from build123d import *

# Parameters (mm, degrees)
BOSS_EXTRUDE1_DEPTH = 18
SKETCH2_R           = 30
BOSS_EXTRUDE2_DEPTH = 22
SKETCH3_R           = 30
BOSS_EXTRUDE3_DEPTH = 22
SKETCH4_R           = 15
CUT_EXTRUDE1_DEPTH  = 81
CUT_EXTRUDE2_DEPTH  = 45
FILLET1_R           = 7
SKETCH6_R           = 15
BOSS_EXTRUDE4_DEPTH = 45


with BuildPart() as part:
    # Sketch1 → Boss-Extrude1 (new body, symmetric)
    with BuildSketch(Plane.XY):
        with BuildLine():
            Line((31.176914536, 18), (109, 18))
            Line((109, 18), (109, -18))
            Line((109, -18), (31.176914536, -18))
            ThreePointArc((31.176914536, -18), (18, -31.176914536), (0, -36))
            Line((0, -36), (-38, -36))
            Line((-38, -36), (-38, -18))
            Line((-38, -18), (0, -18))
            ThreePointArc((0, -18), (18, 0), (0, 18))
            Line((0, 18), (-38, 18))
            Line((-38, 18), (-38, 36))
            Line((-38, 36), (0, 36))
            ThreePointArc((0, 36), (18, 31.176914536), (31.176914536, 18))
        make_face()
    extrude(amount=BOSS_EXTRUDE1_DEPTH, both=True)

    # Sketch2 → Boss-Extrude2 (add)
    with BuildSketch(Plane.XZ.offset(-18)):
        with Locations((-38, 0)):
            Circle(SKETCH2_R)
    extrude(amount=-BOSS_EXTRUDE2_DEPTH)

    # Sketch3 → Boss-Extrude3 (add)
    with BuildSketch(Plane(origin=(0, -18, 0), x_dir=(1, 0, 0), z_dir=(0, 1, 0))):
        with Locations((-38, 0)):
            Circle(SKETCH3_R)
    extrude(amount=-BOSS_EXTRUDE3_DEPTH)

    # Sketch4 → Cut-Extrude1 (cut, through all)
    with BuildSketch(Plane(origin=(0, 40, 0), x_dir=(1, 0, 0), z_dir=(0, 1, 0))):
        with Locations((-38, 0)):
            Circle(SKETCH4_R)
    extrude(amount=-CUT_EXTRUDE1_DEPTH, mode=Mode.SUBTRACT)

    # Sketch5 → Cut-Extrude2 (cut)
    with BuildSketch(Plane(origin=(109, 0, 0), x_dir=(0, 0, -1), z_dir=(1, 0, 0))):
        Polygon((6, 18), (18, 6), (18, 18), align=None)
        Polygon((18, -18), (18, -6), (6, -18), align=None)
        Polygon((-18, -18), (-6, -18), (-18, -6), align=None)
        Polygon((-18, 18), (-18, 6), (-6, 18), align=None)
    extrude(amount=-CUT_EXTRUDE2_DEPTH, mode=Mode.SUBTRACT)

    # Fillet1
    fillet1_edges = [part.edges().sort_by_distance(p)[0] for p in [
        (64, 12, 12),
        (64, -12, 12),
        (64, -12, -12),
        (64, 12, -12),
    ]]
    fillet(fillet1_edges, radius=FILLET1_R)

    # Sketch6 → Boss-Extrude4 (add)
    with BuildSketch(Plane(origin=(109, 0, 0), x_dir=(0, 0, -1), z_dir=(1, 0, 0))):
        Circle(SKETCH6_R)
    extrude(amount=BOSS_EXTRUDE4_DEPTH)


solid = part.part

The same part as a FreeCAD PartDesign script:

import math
import FreeCAD as App
import Part
import Sketcher

V = App.Vector
Q = App.Units.Quantity


def edges_at(feature, points):
    """Names of the edges that pass closest to the given points."""
    edges = feature.Shape.Edges
    near = lambda p: min(range(len(edges)), key=lambda i: edges[i].distToShape(Part.Vertex(*p))[0])
    return sorted({f"Edge{near(p) + 1}" for p in points})

doc = App.newDocument("Part")
params = doc.addObject("Spreadsheet::Sheet", "Params")
for row, (alias, value) in enumerate([
    ("sketch1_radius", "36 mm"),
    ("sketch1_radius2", "18 mm"),
    ("sketch1_width", "38 mm"),
    ("pad1_length", "36 mm"),
    ("sketch2_diameter", "60 mm"),
    ("pad2_length", "22 mm"),
    ("sketch3_diameter", "60 mm"),
    ("pad3_length", "22 mm"),
    ("sketch4_diameter", "30 mm"),
    ("sketch5_width", "12 mm"),
    ("pocket2_length", "45 mm"),
    ("fillet_radius", "7 mm"),
    ("sketch6_diameter", "30 mm"),
    ("pad4_length", "45 mm"),
], start=1):
    params.set(f"A{row}", alias)
    params.set(f"B{row}", "=" + value)
    params.setAlias(f"B{row}", alias)

body = doc.addObject("PartDesign::Body", "Body")

sketch1 = doc.addObject("Sketcher::SketchObject", "Sketch")
body.addObject(sketch1)
sketch1.AttachmentSupport = (doc.XY_Plane, [""])
sketch1.MapMode = "FlatFace"
sketch1.addGeometry([
    Part.LineSegment(V(109, 18, 0), V(31.176915, 18, 0)),
    Part.ArcOfCircle(Part.Circle(V(0, 0, 0), V(0, 0, 1), 36), math.radians(30), math.radians(90)),
    Part.LineSegment(V(0, 36, 0), V(-38, 36, 0)),
    Part.LineSegment(V(-38, 36, 0), V(-38, 18, 0)),
    Part.LineSegment(V(-38, 18, 0), V(0, 18, 0)),
    Part.ArcOfCircle(Part.Circle(V(0, 0, 0), V(0, 0, 1), 18), math.radians(-90), math.radians(90)),
    Part.LineSegment(V(0, -18, 0), V(-38, -18, 0)),
    Part.LineSegment(V(-38, -18, 0), V(-38, -36, 0)),
    Part.LineSegment(V(-38, -36, 0), V(0, -36, 0)),
    Part.ArcOfCircle(Part.Circle(V(0, 0, 0), V(0, 0, 1), 36), math.radians(-90), math.radians(-30)),
    Part.LineSegment(V(31.176915, -18, 0), V(109, -18, 0)),
    Part.LineSegment(V(109, -18, 0), V(109, 18, 0)),
], False)
sketch1.addConstraint([
    Sketcher.Constraint("Coincident", 0, 2, 1, 1),
    Sketcher.Constraint("Tangent", 1, 2, 2, 1),
    Sketcher.Constraint("Coincident", 2, 2, 3, 1),
    Sketcher.Constraint("Coincident", 3, 2, 4, 1),
    Sketcher.Constraint("Tangent", 4, 2, 5, 2),
    Sketcher.Constraint("Tangent", 5, 1, 6, 1),
    Sketcher.Constraint("Coincident", 6, 2, 7, 1),
    Sketcher.Constraint("Coincident", 7, 2, 8, 1),
    Sketcher.Constraint("Tangent", 8, 2, 9, 1),
    Sketcher.Constraint("Coincident", 9, 2, 10, 1),
    Sketcher.Constraint("Coincident", 10, 2, 11, 1),
    Sketcher.Constraint("Coincident", 11, 2, 0, 1),
    Sketcher.Constraint("Horizontal", 0),
    Sketcher.Constraint("Horizontal", 2),
    Sketcher.Constraint("Vertical", 3),
    Sketcher.Constraint("Horizontal", 4),
    Sketcher.Constraint("Horizontal", 6),
    Sketcher.Constraint("Vertical", 7),
    Sketcher.Constraint("Horizontal", 8),
    Sketcher.Constraint("Horizontal", 10),
    Sketcher.Constraint("Vertical", 11),
    Sketcher.Constraint("Coincident", 1, 3, -1, 1),
    Sketcher.Constraint("Coincident", 5, 3, -1, 1),
    Sketcher.Constraint("Coincident", 9, 3, -1, 1),
    Sketcher.Constraint("Equal", 1, 9),
    Sketcher.Constraint("Horizontal", 0, 2, 3, 2),
    Sketcher.Constraint("Horizontal", 6, 2, 9, 2),
    Sketcher.Constraint("Vertical", 3, 2, 6, 2),
    Sketcher.Constraint("Radius", 1, Q("36 mm")),
    Sketcher.Constraint("Radius", 5, Q("18 mm")),
    Sketcher.Constraint("DistanceX", 2, 2, 2, 1, Q("38 mm")),
    Sketcher.Constraint("DistanceX", -1, 1, 10, 2, Q("109 mm")),
])
sketch1.setExpression("Constraints[28]", "Params.sketch1_radius")
sketch1.setExpression("Constraints[29]", "Params.sketch1_radius2")
sketch1.setExpression("Constraints[30]", "Params.sketch1_width")
pad1 = doc.addObject("PartDesign::Pad", "Pad")
body.addObject(pad1)
pad1.Profile = sketch1
pad1.setExpression("Length", "Params.pad1_length")
pad1.Midplane = True

sketch2 = doc.addObject("Sketcher::SketchObject", "Sketch001")
body.addObject(sketch2)
sketch2.AttachmentSupport = (doc.XZ_Plane, [""])
sketch2.MapMode = "FlatFace"
sketch2.AttachmentOffset = App.Placement(V(0, 0, -18), App.Rotation())
sketch2.addGeometry(Part.Circle(V(-38, 0, 0), V(0, 0, 1), 30), False)
sketch2.addConstraint([
    Sketcher.Constraint("PointOnObject", 0, 3, -1),
    Sketcher.Constraint("Diameter", 0, Q("60 mm")),
    Sketcher.Constraint("DistanceX", 0, 3, -1, 1, Q("38 mm")),
])
sketch2.setExpression("Constraints[1]", "Params.sketch2_diameter")
pad2 = doc.addObject("PartDesign::Pad", "Pad001")
body.addObject(pad2)
pad2.Profile = sketch2
pad2.setExpression("Length", "Params.pad2_length")
pad2.Reversed = True

sketch3 = doc.addObject("Sketcher::SketchObject", "Sketch002")
body.addObject(sketch3)
sketch3.AttachmentSupport = (doc.XZ_Plane, [""])
sketch3.MapMode = "FlatFace"
sketch3.AttachmentOffset = App.Placement(V(0, 0, 18), App.Rotation())
sketch3.addGeometry(Part.Circle(V(-38, 0, 0), V(0, 0, 1), 30), False)
sketch3.addConstraint([
    Sketcher.Constraint("PointOnObject", 0, 3, -1),
    Sketcher.Constraint("Diameter", 0, Q("60 mm")),
    Sketcher.Constraint("DistanceX", 0, 3, -1, 1, Q("38 mm")),
])
sketch3.setExpression("Constraints[1]", "Params.sketch3_diameter")
pad3 = doc.addObject("PartDesign::Pad", "Pad002")
body.addObject(pad3)
pad3.Profile = sketch3
pad3.setExpression("Length", "Params.pad3_length")

sketch4 = doc.addObject("Sketcher::SketchObject", "Sketch003")
body.addObject(sketch4)
sketch4.AttachmentSupport = (doc.XZ_Plane, [""])
sketch4.MapMode = "FlatFace"
sketch4.AttachmentOffset = App.Placement(V(0, 0, -40), App.Rotation())
sketch4.addGeometry(Part.Circle(V(-38, 0, 0), V(0, 0, 1), 15), False)
sketch4.addConstraint([
    Sketcher.Constraint("PointOnObject", 0, 3, -1),
    Sketcher.Constraint("Diameter", 0, Q("30 mm")),
    Sketcher.Constraint("DistanceX", 0, 3, -1, 1, Q("38 mm")),
])
sketch4.setExpression("Constraints[1]", "Params.sketch4_diameter")
pocket1 = doc.addObject("PartDesign::Pocket", "Pocket")
body.addObject(pocket1)
pocket1.Profile = sketch4
pocket1.Type = "ThroughAll"
pocket1.Reversed = True

sketch5 = doc.addObject("Sketcher::SketchObject", "Sketch004")
body.addObject(sketch5)
sketch5.AttachmentSupport = (doc.YZ_Plane, [""])
sketch5.MapMode = "FlatFace"
sketch5.AttachmentOffset = App.Placement(V(0, 0, 109), App.Rotation())
sketch5.addGeometry([
    Part.LineSegment(V(18, -6, 0), V(6, -18, 0)),
    Part.LineSegment(V(6, -18, 0), V(18, -18, 0)),
    Part.LineSegment(V(18, -18, 0), V(18, -6, 0)),
    Part.LineSegment(V(-18, -18, 0), V(-6, -18, 0)),
    Part.LineSegment(V(-6, -18, 0), V(-18, -6, 0)),
    Part.LineSegment(V(-18, -6, 0), V(-18, -18, 0)),
    Part.LineSegment(V(-18, 18, 0), V(-18, 6, 0)),
    Part.LineSegment(V(-18, 6, 0), V(-6, 18, 0)),
    Part.LineSegment(V(-6, 18, 0), V(-18, 18, 0)),
    Part.LineSegment(V(18, 18, 0), V(6, 18, 0)),
    Part.LineSegment(V(6, 18, 0), V(18, 6, 0)),
    Part.LineSegment(V(18, 6, 0), V(18, 18, 0)),
], False)
sketch5.addConstraint([
    Sketcher.Constraint("Coincident", 0, 2, 1, 1),
    Sketcher.Constraint("Coincident", 1, 2, 2, 1),
    Sketcher.Constraint("Coincident", 2, 2, 0, 1),
    Sketcher.Constraint("Coincident", 3, 2, 4, 1),
    Sketcher.Constraint("Coincident", 4, 2, 5, 1),
    Sketcher.Constraint("Coincident", 5, 2, 3, 1),
    Sketcher.Constraint("Coincident", 6, 2, 7, 1),
    Sketcher.Constraint("Coincident", 7, 2, 8, 1),
    Sketcher.Constraint("Coincident", 8, 2, 6, 1),
    Sketcher.Constraint("Coincident", 9, 2, 10, 1),
    Sketcher.Constraint("Coincident", 10, 2, 11, 1),
    Sketcher.Constraint("Coincident", 11, 2, 9, 1),
    Sketcher.Constraint("Horizontal", 1),
    Sketcher.Constraint("Vertical", 2),
    Sketcher.Constraint("Horizontal", 3),
    Sketcher.Constraint("Vertical", 5),
    Sketcher.Constraint("Vertical", 6),
    Sketcher.Constraint("Horizontal", 8),
    Sketcher.Constraint("Horizontal", 9),
    Sketcher.Constraint("Vertical", 11),
    Sketcher.Constraint("Symmetric", 2, 2, 6, 2, -1, 1),
    Sketcher.Constraint("Symmetric", 0, 2, 7, 2, -1, 1),
    Sketcher.Constraint("Symmetric", 3, 2, 9, 2, -1, 1),
    Sketcher.Constraint("Symmetric", 4, 2, 10, 2, -1, 1),
    Sketcher.Constraint("Symmetric", 0, 2, 3, 2, -2),
    Sketcher.Constraint("Symmetric", 2, 2, 4, 2, -2),
    Sketcher.Constraint("Perpendicular", 0, 4),
    Sketcher.Constraint("DistanceX", 1, 1, 1, 2, Q("12 mm")),
    Sketcher.Constraint("DistanceX", -1, 1, 0, 2, Q("6 mm")),
    Sketcher.Constraint("DistanceY", 0, 2, -1, 1, Q("18 mm")),
])
sketch5.setExpression("Constraints[27]", "Params.sketch5_width")
pocket2 = doc.addObject("PartDesign::Pocket", "Pocket001")
body.addObject(pocket2)
pocket2.Profile = sketch5
pocket2.setExpression("Length", "Params.pocket2_length")
doc.recompute()

fillet = doc.addObject("PartDesign::Fillet", "Fillet")
body.addObject(fillet)
fillet.Base = (pocket2, edges_at(pocket2, [
    (64, 12, 12),
    (64, -12, 12),
    (64, -12, -12),
    (64, 12, -12),
]))
fillet.setExpression("Radius", "Params.fillet_radius")

sketch6 = doc.addObject("Sketcher::SketchObject", "Sketch005")
body.addObject(sketch6)
sketch6.AttachmentSupport = (doc.YZ_Plane, [""])
sketch6.MapMode = "FlatFace"
sketch6.AttachmentOffset = App.Placement(V(0, 0, 109), App.Rotation())
sketch6.addGeometry(Part.Circle(V(0, 0, 0), V(0, 0, 1), 15), False)
sketch6.addConstraint([
    Sketcher.Constraint("Coincident", 0, 3, -1, 1),
    Sketcher.Constraint("Diameter", 0, Q("30 mm")),
])
sketch6.setExpression("Constraints[1]", "Params.sketch6_diameter")
pad4 = doc.addObject("PartDesign::Pad", "Pad003")
body.addObject(pad4)
pad4.Profile = sketch6
pad4.setExpression("Length", "Params.pad4_length")

doc.recompute()
